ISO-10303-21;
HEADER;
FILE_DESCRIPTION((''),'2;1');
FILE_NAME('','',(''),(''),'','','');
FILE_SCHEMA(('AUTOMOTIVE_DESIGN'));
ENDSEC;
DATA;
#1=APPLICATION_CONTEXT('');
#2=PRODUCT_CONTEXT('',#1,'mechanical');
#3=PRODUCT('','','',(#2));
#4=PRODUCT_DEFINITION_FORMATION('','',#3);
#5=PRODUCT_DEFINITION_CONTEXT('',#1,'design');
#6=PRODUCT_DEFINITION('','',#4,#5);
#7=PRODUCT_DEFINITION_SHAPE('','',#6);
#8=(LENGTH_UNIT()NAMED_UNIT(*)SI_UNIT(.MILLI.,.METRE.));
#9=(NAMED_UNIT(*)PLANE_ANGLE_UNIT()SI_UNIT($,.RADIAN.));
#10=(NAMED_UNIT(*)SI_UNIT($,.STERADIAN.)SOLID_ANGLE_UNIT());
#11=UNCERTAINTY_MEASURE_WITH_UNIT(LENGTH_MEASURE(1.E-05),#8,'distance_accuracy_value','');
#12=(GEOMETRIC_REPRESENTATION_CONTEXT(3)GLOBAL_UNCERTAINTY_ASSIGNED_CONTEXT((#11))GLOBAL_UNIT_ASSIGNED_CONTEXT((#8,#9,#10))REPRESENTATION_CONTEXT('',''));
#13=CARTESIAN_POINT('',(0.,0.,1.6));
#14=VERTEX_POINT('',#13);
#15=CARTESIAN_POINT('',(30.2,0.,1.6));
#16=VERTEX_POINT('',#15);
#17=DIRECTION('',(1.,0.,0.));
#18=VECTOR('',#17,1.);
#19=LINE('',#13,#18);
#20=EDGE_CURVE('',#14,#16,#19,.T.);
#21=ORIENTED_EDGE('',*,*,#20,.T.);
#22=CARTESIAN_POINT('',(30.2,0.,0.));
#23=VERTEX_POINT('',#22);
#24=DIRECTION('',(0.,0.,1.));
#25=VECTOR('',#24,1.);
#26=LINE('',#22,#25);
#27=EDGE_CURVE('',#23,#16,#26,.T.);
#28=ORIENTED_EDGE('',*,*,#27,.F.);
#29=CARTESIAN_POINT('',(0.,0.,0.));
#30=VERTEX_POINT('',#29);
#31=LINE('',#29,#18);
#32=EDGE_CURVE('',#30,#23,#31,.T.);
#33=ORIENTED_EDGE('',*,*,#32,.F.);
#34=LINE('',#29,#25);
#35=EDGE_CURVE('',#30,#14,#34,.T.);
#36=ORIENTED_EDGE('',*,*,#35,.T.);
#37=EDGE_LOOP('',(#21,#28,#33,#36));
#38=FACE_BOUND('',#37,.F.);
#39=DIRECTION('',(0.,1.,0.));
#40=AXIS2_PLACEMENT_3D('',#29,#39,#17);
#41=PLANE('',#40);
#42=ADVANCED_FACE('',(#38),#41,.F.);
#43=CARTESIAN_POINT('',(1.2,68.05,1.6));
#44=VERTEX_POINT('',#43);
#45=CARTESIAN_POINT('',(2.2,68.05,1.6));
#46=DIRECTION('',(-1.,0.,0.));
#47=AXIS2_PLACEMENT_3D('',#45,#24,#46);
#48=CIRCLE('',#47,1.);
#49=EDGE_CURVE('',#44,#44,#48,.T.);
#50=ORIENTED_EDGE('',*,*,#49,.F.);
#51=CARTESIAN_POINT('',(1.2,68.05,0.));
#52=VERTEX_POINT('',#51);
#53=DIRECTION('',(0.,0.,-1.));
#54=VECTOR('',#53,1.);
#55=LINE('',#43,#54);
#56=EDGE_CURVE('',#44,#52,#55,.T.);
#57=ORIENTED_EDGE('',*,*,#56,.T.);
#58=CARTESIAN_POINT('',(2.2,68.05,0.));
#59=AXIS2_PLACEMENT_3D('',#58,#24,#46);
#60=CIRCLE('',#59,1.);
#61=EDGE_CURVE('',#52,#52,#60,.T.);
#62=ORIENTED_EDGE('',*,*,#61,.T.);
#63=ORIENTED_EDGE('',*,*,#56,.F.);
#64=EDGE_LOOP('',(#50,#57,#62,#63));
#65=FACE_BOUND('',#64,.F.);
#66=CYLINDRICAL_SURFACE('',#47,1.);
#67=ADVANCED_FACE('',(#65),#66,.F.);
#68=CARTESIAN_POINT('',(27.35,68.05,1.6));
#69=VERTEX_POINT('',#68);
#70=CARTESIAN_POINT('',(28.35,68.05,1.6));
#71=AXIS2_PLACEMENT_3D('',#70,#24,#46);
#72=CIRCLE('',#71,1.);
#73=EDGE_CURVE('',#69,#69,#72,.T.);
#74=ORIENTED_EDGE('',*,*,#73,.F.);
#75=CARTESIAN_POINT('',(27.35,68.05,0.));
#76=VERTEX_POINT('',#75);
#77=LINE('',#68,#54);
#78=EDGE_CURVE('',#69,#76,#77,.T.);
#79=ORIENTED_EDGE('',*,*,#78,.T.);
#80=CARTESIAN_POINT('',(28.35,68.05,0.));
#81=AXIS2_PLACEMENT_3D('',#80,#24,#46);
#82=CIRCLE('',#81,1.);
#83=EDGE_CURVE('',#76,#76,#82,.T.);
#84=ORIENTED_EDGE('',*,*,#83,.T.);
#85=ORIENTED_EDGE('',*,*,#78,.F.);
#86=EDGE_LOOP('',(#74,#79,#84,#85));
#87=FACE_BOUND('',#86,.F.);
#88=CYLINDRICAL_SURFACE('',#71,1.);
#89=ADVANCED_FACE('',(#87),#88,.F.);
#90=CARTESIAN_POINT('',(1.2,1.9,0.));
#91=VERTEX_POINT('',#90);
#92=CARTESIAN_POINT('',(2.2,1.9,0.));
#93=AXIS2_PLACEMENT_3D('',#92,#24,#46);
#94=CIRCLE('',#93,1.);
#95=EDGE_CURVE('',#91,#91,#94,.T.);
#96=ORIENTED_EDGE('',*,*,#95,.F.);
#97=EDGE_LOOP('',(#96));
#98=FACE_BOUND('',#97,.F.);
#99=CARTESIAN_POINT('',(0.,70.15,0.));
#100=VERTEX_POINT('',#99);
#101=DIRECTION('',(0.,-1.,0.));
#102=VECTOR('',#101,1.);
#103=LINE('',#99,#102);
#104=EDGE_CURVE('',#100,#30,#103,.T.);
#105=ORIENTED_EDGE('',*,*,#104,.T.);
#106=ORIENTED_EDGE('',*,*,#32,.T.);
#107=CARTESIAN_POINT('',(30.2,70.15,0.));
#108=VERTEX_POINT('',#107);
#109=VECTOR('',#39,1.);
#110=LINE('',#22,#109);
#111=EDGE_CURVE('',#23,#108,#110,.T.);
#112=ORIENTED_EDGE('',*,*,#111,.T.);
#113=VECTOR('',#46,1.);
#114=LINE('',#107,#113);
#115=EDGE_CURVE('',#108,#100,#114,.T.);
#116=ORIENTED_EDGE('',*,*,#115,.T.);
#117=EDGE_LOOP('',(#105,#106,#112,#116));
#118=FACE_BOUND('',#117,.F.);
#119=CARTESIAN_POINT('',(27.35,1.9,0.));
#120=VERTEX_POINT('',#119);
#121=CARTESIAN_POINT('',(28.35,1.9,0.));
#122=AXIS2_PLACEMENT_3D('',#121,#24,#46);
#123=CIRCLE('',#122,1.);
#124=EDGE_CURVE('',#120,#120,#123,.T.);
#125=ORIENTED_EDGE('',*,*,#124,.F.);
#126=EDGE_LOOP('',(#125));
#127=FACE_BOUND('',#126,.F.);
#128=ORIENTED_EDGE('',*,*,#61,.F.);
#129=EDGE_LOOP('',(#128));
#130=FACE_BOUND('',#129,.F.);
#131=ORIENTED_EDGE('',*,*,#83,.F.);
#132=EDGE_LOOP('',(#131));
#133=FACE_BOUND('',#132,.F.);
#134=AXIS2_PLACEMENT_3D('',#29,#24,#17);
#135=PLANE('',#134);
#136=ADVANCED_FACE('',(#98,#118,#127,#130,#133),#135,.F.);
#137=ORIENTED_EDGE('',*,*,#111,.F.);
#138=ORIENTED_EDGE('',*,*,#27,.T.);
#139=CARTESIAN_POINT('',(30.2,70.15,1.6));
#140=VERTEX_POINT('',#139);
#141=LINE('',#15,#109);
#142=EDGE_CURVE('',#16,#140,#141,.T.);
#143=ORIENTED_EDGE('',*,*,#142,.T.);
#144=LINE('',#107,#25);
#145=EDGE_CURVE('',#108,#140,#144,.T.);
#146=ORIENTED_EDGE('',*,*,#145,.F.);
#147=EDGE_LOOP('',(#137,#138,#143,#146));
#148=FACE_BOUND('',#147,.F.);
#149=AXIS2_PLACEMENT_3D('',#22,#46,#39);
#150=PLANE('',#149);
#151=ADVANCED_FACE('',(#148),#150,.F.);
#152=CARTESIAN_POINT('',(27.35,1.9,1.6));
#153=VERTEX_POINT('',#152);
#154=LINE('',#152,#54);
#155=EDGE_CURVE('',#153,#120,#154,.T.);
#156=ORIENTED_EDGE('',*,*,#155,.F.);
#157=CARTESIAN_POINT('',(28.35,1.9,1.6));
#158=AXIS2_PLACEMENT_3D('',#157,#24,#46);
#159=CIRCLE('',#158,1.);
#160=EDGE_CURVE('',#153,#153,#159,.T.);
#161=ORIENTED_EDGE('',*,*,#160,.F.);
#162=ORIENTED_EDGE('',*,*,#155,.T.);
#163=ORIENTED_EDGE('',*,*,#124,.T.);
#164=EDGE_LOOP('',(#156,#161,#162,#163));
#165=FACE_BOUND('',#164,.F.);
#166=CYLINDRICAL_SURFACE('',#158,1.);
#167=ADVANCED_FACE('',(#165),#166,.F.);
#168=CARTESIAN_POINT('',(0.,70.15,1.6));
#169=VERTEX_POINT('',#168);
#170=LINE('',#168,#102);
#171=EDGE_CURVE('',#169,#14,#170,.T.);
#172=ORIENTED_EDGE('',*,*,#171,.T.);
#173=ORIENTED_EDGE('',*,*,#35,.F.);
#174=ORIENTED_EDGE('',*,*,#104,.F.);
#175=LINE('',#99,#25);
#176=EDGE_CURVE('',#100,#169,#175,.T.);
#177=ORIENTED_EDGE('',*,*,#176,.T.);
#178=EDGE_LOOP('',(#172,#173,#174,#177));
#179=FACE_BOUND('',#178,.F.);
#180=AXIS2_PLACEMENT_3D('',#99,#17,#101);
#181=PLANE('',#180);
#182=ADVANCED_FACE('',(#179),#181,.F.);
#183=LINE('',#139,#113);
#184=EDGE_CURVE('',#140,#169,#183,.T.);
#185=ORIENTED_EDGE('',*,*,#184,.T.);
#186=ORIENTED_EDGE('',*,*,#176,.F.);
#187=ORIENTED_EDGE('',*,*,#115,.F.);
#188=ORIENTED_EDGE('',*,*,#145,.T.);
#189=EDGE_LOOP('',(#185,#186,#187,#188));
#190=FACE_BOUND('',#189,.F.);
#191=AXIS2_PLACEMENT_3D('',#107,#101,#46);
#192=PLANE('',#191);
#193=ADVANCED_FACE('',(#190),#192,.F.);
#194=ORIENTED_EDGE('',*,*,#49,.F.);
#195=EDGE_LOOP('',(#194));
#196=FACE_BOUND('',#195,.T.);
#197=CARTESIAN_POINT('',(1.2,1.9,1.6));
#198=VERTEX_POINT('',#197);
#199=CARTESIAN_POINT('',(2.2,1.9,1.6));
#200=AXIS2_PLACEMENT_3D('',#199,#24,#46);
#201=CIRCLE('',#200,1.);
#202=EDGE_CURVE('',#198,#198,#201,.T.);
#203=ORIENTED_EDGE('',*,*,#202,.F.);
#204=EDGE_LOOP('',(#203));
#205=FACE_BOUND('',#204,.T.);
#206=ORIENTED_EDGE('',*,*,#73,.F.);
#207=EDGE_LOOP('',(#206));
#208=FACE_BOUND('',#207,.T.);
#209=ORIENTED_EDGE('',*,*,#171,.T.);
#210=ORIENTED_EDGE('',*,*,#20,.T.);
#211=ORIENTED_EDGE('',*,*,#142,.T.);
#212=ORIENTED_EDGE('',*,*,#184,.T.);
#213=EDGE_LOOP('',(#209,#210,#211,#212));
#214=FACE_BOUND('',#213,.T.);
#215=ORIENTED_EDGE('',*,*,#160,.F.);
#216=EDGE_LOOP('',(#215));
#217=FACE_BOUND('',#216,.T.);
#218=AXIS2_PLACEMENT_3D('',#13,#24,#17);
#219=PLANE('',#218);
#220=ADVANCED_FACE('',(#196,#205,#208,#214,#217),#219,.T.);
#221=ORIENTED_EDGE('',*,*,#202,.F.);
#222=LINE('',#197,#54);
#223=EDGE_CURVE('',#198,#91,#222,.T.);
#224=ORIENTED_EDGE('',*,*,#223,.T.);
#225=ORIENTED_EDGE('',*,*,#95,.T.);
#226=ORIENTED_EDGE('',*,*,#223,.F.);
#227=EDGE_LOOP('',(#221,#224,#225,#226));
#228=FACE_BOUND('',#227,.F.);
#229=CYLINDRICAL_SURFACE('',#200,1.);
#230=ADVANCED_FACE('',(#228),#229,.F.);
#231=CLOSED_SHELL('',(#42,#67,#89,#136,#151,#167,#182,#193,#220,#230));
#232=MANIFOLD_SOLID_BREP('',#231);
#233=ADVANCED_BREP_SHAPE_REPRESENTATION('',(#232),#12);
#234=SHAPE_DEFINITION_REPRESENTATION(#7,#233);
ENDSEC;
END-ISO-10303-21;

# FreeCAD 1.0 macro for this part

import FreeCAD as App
import Part
import Sketcher
from FreeCAD import Vector
Q = App.Units.Quantity


def add_polygon(sketch, points):
    """Adds a closed chain of lines whose ends are joined by coincident constraints."""
    first, n = sketch.GeometryCount, len(points)
    for a, b in zip(points, points[1:] + points[:1]):
        sketch.addGeometry(Part.LineSegment(App.Vector(*a, 0), App.Vector(*b, 0)), False)
    for i in range(n):
        sketch.addConstraint(Sketcher.Constraint("Coincident", first + i, 2, first + (i + 1) % n, 1))

doc = App.newDocument("Part")
body = doc.addObject("PartDesign::Body", "Body")

sketch1 = body.newObject("Sketcher::SketchObject", "Sketch")
sketch1.AttachmentSupport = (doc.getObject("XY_Plane"), [""])
sketch1.MapMode = "FlatFace"
add_polygon(sketch1, [(0, 70), (0, 0), (30, 0), (30, 70)])
sketch1.addConstraint([
    Sketcher.Constraint("Vertical", 0),
    Sketcher.Constraint("Horizontal", 1),
    Sketcher.Constraint("Vertical", 2),
    Sketcher.Constraint("Horizontal", 3),
    Sketcher.Constraint("Coincident", 0, 2, -1, 1),
    Sketcher.Constraint("DistanceX", 1, 1, 1, 2, Q("30.2 mm")),
    Sketcher.Constraint("DistanceY", 0, 2, 0, 1, Q("70.15 mm")),
])
pad1 = body.newObject("PartDesign::Pad", "Pad")
pad1.Profile = sketch1
pad1.Length = 1.6

sketch2 = body.newObject("Sketcher::SketchObject", "Sketch001")
sketch2.AttachmentSupport = (doc.getObject("XY_Plane"), [""])
sketch2.MapMode = "FlatFace"
sketch2.AttachmentOffset = App.Placement(Vector(0, 0, 1.6), App.Rotation())
sketch2.addGeometry([
    Part.Circle(Vector(2.2, 68, 0), Vector(0, 0, 1), 1),
    Part.Circle(Vector(28.4, 68, 0), Vector(0, 0, 1), 1),
    Part.Circle(Vector(2.2, 1.9, 0), Vector(0, 0, 1), 1),
    Part.Circle(Vector(28.4, 1.9, 0), Vector(0, 0, 1), 1),
], False)
sketch2.addConstraint([
    Sketcher.Constraint("Equal", 0, 1),
    Sketcher.Constraint("Equal", 1, 2),
    Sketcher.Constraint("Equal", 2, 3),
    Sketcher.Constraint("Horizontal", 0, 3, 1, 3),
    Sketcher.Constraint("Horizontal", 2, 3, 3, 3),
    Sketcher.Constraint("Vertical", 0, 3, 2, 3),
    Sketcher.Constraint("Vertical", 1, 3, 3, 3),
    Sketcher.Constraint("Diameter", 0, Q("2 mm")),
    Sketcher.Constraint("DistanceX", 0, 3, 1, 3, Q("26.15 mm")),
    Sketcher.Constraint("DistanceY", 2, 3, 0, 3, Q("66.15 mm")),
    Sketcher.Constraint("DistanceX", -1, 1, 0, 3, Q("2.2 mm")),
    Sketcher.Constraint("DistanceY", -1, 1, 2, 3, Q("1.9 mm")),
])
pocket1 = body.newObject("PartDesign::Pocket", "Pocket")
pocket1.Profile = sketch2
pocket1.Length = 1.6

doc.recompute()
